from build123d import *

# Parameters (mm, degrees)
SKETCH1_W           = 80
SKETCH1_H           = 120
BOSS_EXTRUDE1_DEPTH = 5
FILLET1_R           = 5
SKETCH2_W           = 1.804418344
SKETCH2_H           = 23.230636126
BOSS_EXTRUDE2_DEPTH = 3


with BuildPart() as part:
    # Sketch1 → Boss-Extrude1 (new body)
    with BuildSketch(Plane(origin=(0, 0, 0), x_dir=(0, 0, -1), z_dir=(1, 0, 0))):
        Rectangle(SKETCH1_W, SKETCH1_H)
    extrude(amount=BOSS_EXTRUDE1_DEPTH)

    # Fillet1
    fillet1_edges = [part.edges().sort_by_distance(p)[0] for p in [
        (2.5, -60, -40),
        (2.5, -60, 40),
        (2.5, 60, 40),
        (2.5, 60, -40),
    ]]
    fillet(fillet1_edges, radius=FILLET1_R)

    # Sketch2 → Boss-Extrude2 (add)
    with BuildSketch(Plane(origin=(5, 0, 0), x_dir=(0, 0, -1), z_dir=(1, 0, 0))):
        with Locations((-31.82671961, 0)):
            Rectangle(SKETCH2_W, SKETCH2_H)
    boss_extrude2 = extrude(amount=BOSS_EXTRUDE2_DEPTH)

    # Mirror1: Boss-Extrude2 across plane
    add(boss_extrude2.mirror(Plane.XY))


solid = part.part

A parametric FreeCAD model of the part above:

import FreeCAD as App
import Part
import Sketcher

V = App.Vector


def edges_at(feature, points):
    """Names of the edges that pass closest to the given points."""
    edges = feature.Shape.Edges
    near = lambda p: min(range(len(edges)), key=lambda i: edges[i].distToShape(Part.Vertex(*p))[0])
    return sorted({f"Edge{near(p) + 1}" for p in points})

doc = App.newDocument("Part")
params = doc.addObject("Spreadsheet::Sheet", "Params")
for row, (alias, value) in enumerate([
    ("sketch1_width", "120 mm"),
    ("sketch1_height", "80 mm"),
    ("pad1_length", "5 mm"),
    ("fillet_radius", "5 mm"),
    ("pad2_length", "3 mm"),
], start=1):
    params.set(f"A{row}", alias)
    params.set(f"B{row}", "=" + value)
    params.setAlias(f"B{row}", alias)

body = doc.addObject("PartDesign::Body", "Body")

# Sketch on YZ plane
sketch1 = body.newObject("Sketcher::SketchObject", "Sketch")
sketch1.AttachmentSupport = (doc.getObject("YZ_Plane"), [""])
sketch1.MapMode = "FlatFace"
sketch1.addGeometry([
    Part.LineSegment(V(60, 40, 0), V(-60, 40, 0)),
    Part.LineSegment(V(-60, 40, 0), V(-60, -40, 0)),
    Part.LineSegment(V(-60, -40, 0), V(60, -40, 0)),
    Part.LineSegment(V(60, -40, 0), V(60, 40, 0)),
], False)
sketch1.addConstraint([
    Sketcher.Constraint("Coincident", 0, 2, 1, 1),
    Sketcher.Constraint("Coincident", 1, 2, 2, 1),
    Sketcher.Constraint("Coincident", 2, 2, 3, 1),
    Sketcher.Constraint("Coincident", 3, 2, 0, 1),
    Sketcher.Constraint("Horizontal", 0),
    Sketcher.Constraint("Vertical", 1),
    Sketcher.Constraint("Horizontal", 2),
    Sketcher.Constraint("Vertical", 3),
    Sketcher.Constraint("Symmetric", 0, 2, 2, 2, -1, 1),
    Sketcher.Constraint("DistanceX", 0, 2, 0, 1, 120.0),
    Sketcher.Constraint("DistanceY", 1, 2, 1, 1, 80.0),
])
sketch1.setExpression("Constraints[9]", "Params.sketch1_width")
sketch1.setExpression("Constraints[10]", "Params.sketch1_height")
pad1 = body.newObject("PartDesign::Pad", "Pad")
pad1.Profile = sketch1
pad1.setExpression("Length", "Params.pad1_length")
doc.recompute()

fillet = body.newObject("PartDesign::Fillet", "Fillet")
fillet.Base = (pad1, edges_at(pad1, [
    (2.5, -60, -40),
    (2.5, -60, 40),
    (2.5, 60, 40),
    (2.5, 60, -40),
]))
fillet.setExpression("Radius", "Params.fillet_radius")

# Sketch on YZ plane
sketch2 = body.newObject("Sketcher::SketchObject", "Sketch001")
sketch2.AttachmentSupport = (doc.getObject("YZ_Plane"), [""])
sketch2.MapMode = "FlatFace"
sketch2.AttachmentOffset = App.Placement(V(0, 0, 5), App.Rotation())
sketch2.addGeometry([
    Part.LineSegment(V(11.615318, 32.728929, 0), V(-11.615318, 32.728929, 0)),
    Part.LineSegment(V(-11.615318, 32.728929, 0), V(-11.615318, 30.92451, 0)),
    Part.LineSegment(V(-11.615318, 30.92451, 0), V(11.615318, 30.92451, 0)),
    Part.LineSegment(V(11.615318, 30.92451, 0), V(11.615318, 32.728929, 0)),
], False)
sketch2.addConstraint([
    Sketcher.Constraint("Coincident", 0, 2, 1, 1),
    Sketcher.Constraint("Coincident", 1, 2, 2, 1),
    Sketcher.Constraint("Coincident", 2, 2, 3, 1),
    Sketcher.Constraint("Coincident", 3, 2, 0, 1),
    Sketcher.Constraint("Horizontal", 0),
    Sketcher.Constraint("Vertical", 1),
    Sketcher.Constraint("Horizontal", 2),
    Sketcher.Constraint("Vertical", 3),
    Sketcher.Constraint("DistanceY", 1, 2, 1, 1, 1.804418),
    Sketcher.Constraint("DistanceX", 0, 2, 0, 1, 23.230636),
    Sketcher.Constraint("DistanceX", 0, 2, -1, 1, 11.615318),
    Sketcher.Constraint("DistanceY", -1, 1, 0, 2, 32.728929),
])
pad2 = body.newObject("PartDesign::Pad", "Pad001")
pad2.Profile = sketch2
pad2.setExpression("Length", "Params.pad2_length")
doc.recompute()

mirrored = body.newObject("PartDesign::Mirrored", "Mirrored")
mirrored.Originals = [pad2]
mirrored.MirrorPlane = (doc.getObject("XY_Plane"), [""])
body.Tip = mirrored

doc.recompute()
